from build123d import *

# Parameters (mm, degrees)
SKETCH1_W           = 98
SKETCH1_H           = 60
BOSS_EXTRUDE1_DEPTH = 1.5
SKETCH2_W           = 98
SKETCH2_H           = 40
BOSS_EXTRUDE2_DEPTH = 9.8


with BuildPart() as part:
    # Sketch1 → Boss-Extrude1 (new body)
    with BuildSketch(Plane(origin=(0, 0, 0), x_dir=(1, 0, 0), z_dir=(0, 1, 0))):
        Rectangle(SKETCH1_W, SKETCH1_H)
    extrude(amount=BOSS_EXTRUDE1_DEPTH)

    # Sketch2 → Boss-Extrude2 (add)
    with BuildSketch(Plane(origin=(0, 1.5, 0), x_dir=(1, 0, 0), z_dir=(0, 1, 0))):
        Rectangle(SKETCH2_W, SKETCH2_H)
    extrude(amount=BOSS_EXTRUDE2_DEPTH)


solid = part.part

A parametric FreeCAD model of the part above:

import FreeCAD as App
import Part
import Sketcher

doc = App.newDocument("Part")
params = doc.addObject("Spreadsheet::Sheet", "Params")
for row, (alias, value) in enumerate([
    ("sketch1_width", "98 mm"),
    ("sketch1_height", "60 mm"),
    ("pad1_length", "1.5 mm"),
    ("sketch2_width", "98 mm"),
    ("sketch2_height", "40 mm"),
    ("pad2_length", "9.8 mm"),
], start=1):
    params.set(f"A{row}", alias)
    params.set(f"B{row}", "=" + value)
    params.setAlias(f"B{row}", alias)

body = doc.addObject("PartDesign::Body", "Body")

sketch1 = body.newObject("Sketcher::SketchObject", "Sketch")
sketch1.AttachmentSupport = (doc.getObject("XZ_Plane"), [""])
sketch1.MapMode = "FlatFace"
sketch1.addGeometry([
    Part.LineSegment(App.Vector(-49, -30, 0), App.Vector(-49, 30, 0)),
    Part.LineSegment(App.Vector(-49, 30, 0), App.Vector(49, 30, 0)),
    Part.LineSegment(App.Vector(49, 30, 0), App.Vector(49, -30, 0)),
    Part.LineSegment(App.Vector(49, -30, 0), App.Vector(-49, -30, 0)),
], False)
sketch1.addConstraint([
    Sketcher.Constraint("Coincident", 0, 2, 1, 1),
    Sketcher.Constraint("Coincident", 1, 2, 2, 1),
    Sketcher.Constraint("Coincident", 2, 2, 3, 1),
    Sketcher.Constraint("Coincident", 3, 2, 0, 1),
    Sketcher.Constraint("Vertical", 0),
    Sketcher.Constraint("Horizontal", 1),
    Sketcher.Constraint("Vertical", 2),
    Sketcher.Constraint("Horizontal", 3),
    Sketcher.Constraint("Symmetric", 0, 2, 2, 2, -1, 1),
    Sketcher.Constraint("DistanceX", 1, 1, 1, 2, 98.0),
    Sketcher.Constraint("DistanceY", 0, 1, 0, 2, 60.0),
])
sketch1.setExpression("Constraints[9]", "Params.sketch1_width")
sketch1.setExpression("Constraints[10]", "Params.sketch1_height")
pad1 = body.newObject("PartDesign::Pad", "Pad")
pad1.Profile = sketch1
pad1.setExpression("Length", "Params.pad1_length")
pad1.Reversed = True

sketch2 = body.newObject("Sketcher::SketchObject", "Sketch001")
sketch2.AttachmentSupport = (doc.getObject("XZ_Plane"), [""])
sketch2.MapMode = "FlatFace"
sketch2.AttachmentOffset = App.Placement(App.Vector(0, 0, -1.5), App.Rotation())
sketch2.addGeometry([
    Part.LineSegment(App.Vector(-49, -20, 0), App.Vector(-49, 20, 0)),
    Part.LineSegment(App.Vector(-49, 20, 0), App.Vector(49, 20, 0)),
    Part.LineSegment(App.Vector(49, 20, 0), App.Vector(49, -20, 0)),
    Part.LineSegment(App.Vector(49, -20, 0), App.Vector(-49, -20, 0)),
], False)
sketch2.addConstraint([
    Sketcher.Constraint("Coincident", 0, 2, 1, 1),
    Sketcher.Constraint("Coincident", 1, 2, 2, 1),
    Sketcher.Constraint("Coincident", 2, 2, 3, 1),
    Sketcher.Constraint("Coincident", 3, 2, 0, 1),
    Sketcher.Constraint("Vertical", 0),
    Sketcher.Constraint("Horizontal", 1),
    Sketcher.Constraint("Vertical", 2),
    Sketcher.Constraint("Horizontal", 3),
    Sketcher.Constraint("Symmetric", 0, 2, 2, 2, -1, 1),
    Sketcher.Constraint("DistanceX", 1, 1, 1, 2, 98.0),
    Sketcher.Constraint("DistanceY", 0, 1, 0, 2, 40.0),
])
sketch2.setExpression("Constraints[9]", "Params.sketch2_width")
sketch2.setExpression("Constraints[10]", "Params.sketch2_height")
pad2 = body.newObject("PartDesign::Pad", "Pad001")
pad2.Profile = sketch2
pad2.setExpression("Length", "Params.pad2_length")
pad2.Reversed = True

doc.recompute()
